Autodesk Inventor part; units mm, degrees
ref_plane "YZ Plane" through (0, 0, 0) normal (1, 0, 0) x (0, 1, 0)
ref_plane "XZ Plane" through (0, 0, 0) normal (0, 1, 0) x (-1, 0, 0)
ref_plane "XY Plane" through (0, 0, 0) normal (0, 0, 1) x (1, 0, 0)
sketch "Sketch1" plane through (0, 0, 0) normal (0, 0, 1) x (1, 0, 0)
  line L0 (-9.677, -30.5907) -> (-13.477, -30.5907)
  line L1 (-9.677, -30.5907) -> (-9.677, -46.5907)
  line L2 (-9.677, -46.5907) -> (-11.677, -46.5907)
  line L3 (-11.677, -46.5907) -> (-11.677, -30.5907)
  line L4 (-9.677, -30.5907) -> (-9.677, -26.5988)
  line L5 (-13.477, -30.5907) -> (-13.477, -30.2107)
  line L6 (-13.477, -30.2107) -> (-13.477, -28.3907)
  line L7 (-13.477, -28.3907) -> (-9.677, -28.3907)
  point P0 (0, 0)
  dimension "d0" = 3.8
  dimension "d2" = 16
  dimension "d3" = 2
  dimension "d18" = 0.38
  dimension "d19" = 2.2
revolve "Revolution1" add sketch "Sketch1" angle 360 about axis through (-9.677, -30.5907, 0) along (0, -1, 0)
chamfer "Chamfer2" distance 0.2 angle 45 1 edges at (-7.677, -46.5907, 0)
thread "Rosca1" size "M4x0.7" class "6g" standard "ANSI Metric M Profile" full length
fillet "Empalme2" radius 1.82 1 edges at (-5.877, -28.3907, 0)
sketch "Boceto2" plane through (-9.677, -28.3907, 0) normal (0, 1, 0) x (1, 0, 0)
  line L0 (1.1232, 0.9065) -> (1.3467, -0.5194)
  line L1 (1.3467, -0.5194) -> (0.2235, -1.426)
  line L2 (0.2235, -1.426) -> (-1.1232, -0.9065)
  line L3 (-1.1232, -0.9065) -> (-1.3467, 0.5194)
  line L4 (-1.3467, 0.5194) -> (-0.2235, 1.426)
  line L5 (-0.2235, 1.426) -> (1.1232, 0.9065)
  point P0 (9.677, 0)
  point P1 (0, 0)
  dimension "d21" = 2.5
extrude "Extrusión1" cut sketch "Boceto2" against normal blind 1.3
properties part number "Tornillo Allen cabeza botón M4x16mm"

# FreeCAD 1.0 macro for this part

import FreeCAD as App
import Part
import Sketcher
from FreeCAD import Vector


def edges_at(feature, points):
    """Names of the edges that pass closest to the given points."""
    edges = feature.Shape.Edges
    near = lambda p: min(range(len(edges)), key=lambda i: edges[i].distToShape(Part.Vertex(*p))[0])
    return sorted({f"Edge{near(p) + 1}" for p in points})

doc = App.newDocument("Part")
params = doc.addObject("Spreadsheet::Sheet", "Params")
for row, (alias, value) in enumerate([
    ("sketch1_width", "2 mm"),
    ("sketch1_height", "16 mm"),
    ("sketch1_width2", "3.8 mm"),
    ("sketch1_height2", "2.2 mm"),
    ("revolution_angle", "360 deg"),
    ("chamfer_size", "0.2 mm"),
    ("fillet_radius", "1.82 mm"),
    ("pocket1_length", "1.3 mm"),
], start=1):
    params.set(f"A{row}", alias)
    params.set(f"B{row}", "=" + value)
    params.setAlias(f"B{row}", alias)

body = doc.addObject("PartDesign::Body", "Body")

# Sketch on XY plane
sketch1 = doc.addObject("Sketcher::SketchObject", "Sketch")
body.addObject(sketch1)
sketch1.AttachmentSupport = (doc.XY_Plane, [""])
sketch1.MapMode = "FlatFace"
sketch1.addGeometry([
    Part.LineSegment(Vector(-9.7, -46.6, 0), Vector(-9.7, -28.4, 0)),  # 0
    Part.LineSegment(Vector(-9.7, -28.4, 0), Vector(-13.5, -28.4, 0)),  # 1
    Part.LineSegment(Vector(-13.5, -28.4, 0), Vector(-13.5, -30.6, 0)),  # 2
    Part.LineSegment(Vector(-13.5, -30.6, 0), Vector(-11.7, -30.6, 0)),  # 3
    Part.LineSegment(Vector(-11.7, -30.6, 0), Vector(-11.7, -46.6, 0)),  # 4
    Part.LineSegment(Vector(-11.7, -46.6, 0), Vector(-9.7, -46.6, 0)),  # 5
], False)
sketch1.addGeometry(Part.LineSegment(Vector(-9.7, -28.4, 0), Vector(-9.7, -46.6, 0)), True)  # axis
sketch1.addConstraint([
    Sketcher.Constraint("Coincident", 0, 2, 1, 1),
    Sketcher.Constraint("Coincident", 1, 2, 2, 1),
    Sketcher.Constraint("Coincident", 2, 2, 3, 1),
    Sketcher.Constraint("Coincident", 3, 2, 4, 1),
    Sketcher.Constraint("Coincident", 4, 2, 5, 1),
    Sketcher.Constraint("Coincident", 5, 2, 0, 1),
    Sketcher.Constraint("Vertical", 0),
    Sketcher.Constraint("Horizontal", 1),
    Sketcher.Constraint("Vertical", 2),
    Sketcher.Constraint("Horizontal", 3),
    Sketcher.Constraint("Vertical", 4),
    Sketcher.Constraint("Horizontal", 5),
    Sketcher.Constraint("Vertical", 6),
    Sketcher.Constraint("Coincident", 6, 1, 0, 2),
    Sketcher.Constraint("Horizontal", 4, 2, 6, 2),
    Sketcher.Constraint("DistanceX", 5, 1, 5, 2, 2.0),
    Sketcher.Constraint("DistanceY", 4, 2, 4, 1, 16.0),
    Sketcher.Constraint("DistanceX", 1, 2, 1, 1, 3.8),
    Sketcher.Constraint("DistanceY", 2, 2, 2, 1, 2.2),
    Sketcher.Constraint("DistanceX", 0, 2, -1, 1, 9.677),
    Sketcher.Constraint("DistanceY", 0, 2, -1, 1, 28.3907),
])
sketch1.setExpression("Constraints[15]", "Params.sketch1_width")
sketch1.setExpression("Constraints[16]", "Params.sketch1_height")
sketch1.setExpression("Constraints[17]", "Params.sketch1_width2")
sketch1.setExpression("Constraints[18]", "Params.sketch1_height2")
revolution = doc.addObject("PartDesign::Revolution", "Revolution")
body.addObject(revolution)
revolution.Profile = sketch1
revolution.ReferenceAxis = (sketch1, ["Axis0"])
revolution.setExpression("Angle", "Params.revolution_angle")
doc.recompute()

chamfer = doc.addObject("PartDesign::Chamfer", "Chamfer")
body.addObject(chamfer)
chamfer.Base = (revolution, edges_at(revolution, [(-7.677, -46.591, 0)]))
chamfer.setExpression("Size", "Params.chamfer_size")
doc.recompute()

fillet = doc.addObject("PartDesign::Fillet", "Fillet")
body.addObject(fillet)
fillet.Base = (chamfer, edges_at(chamfer, [(-5.877, -28.391, 0)]))
fillet.setExpression("Radius", "Params.fillet_radius")

# Sketch on XZ plane
sketch2 = doc.addObject("Sketcher::SketchObject", "Sketch001")
body.addObject(sketch2)
sketch2.AttachmentSupport = (doc.XZ_Plane, [""])
sketch2.MapMode = "FlatFace"
sketch2.AttachmentOffset = App.Placement(Vector(0, 0, 28.3907), App.Rotation())
sketch2.addGeometry([
    Part.LineSegment(Vector(-8.3303, 0.5194, 0), Vector(-8.5538, -0.9065, 0)),  # 0
    Part.LineSegment(Vector(-8.5538, -0.9065, 0), Vector(-9.9005, -1.426, 0)),  # 1
    Part.LineSegment(Vector(-9.9005, -1.426, 0), Vector(-11.0237, -0.5194, 0)),  # 2
    Part.LineSegment(Vector(-11.0237, -0.5194, 0), Vector(-10.8002, 0.9065, 0)),  # 3
    Part.LineSegment(Vector(-10.8002, 0.9065, 0), Vector(-9.4535, 1.426, 0)),  # 4
    Part.LineSegment(Vector(-9.4535, 1.426, 0), Vector(-8.3303, 0.5194, 0)),  # 5
], False)
sketch2.addConstraint([
    Sketcher.Constraint("Coincident", 0, 2, 1, 1),
    Sketcher.Constraint("Coincident", 1, 2, 2, 1),
    Sketcher.Constraint("Coincident", 2, 2, 3, 1),
    Sketcher.Constraint("Coincident", 3, 2, 4, 1),
    Sketcher.Constraint("Coincident", 4, 2, 5, 1),
    Sketcher.Constraint("Coincident", 5, 2, 0, 1),
    Sketcher.Constraint("DistanceX", 2, 2, 0, 2, 2.47),
    Sketcher.Constraint("DistanceX", 3, 2, 5, 2, 2.47),
    Sketcher.Constraint("DistanceY", 1, 2, -1, 1, 1.426),
    Sketcher.Constraint("DistanceY", -1, 1, 4, 2, 1.426),
    Sketcher.Constraint("DistanceY", 0, 2, 2, 2, 0.387),
    Sketcher.Constraint("DistanceY", 2, 2, 3, 2, 1.426),
    Sketcher.Constraint("DistanceX", 1, 2, 4, 2, 0.447),
    Sketcher.Constraint("DistanceY", 0, 2, 5, 2, 1.426),
    Sketcher.Constraint("Distance", 0, 1.4433),
    Sketcher.Constraint("Distance", 1, 1.4434),
    Sketcher.Constraint("Distance", 2, 1.4434),
    Sketcher.Constraint("DistanceX", 0, 2, -1, 1, 8.5538),
])
pocket1 = doc.addObject("PartDesign::Pocket", "Pocket")
body.addObject(pocket1)
pocket1.Profile = sketch2
pocket1.setExpression("Length", "Params.pocket1_length")
pocket1.Reversed = True

doc.recompute()
